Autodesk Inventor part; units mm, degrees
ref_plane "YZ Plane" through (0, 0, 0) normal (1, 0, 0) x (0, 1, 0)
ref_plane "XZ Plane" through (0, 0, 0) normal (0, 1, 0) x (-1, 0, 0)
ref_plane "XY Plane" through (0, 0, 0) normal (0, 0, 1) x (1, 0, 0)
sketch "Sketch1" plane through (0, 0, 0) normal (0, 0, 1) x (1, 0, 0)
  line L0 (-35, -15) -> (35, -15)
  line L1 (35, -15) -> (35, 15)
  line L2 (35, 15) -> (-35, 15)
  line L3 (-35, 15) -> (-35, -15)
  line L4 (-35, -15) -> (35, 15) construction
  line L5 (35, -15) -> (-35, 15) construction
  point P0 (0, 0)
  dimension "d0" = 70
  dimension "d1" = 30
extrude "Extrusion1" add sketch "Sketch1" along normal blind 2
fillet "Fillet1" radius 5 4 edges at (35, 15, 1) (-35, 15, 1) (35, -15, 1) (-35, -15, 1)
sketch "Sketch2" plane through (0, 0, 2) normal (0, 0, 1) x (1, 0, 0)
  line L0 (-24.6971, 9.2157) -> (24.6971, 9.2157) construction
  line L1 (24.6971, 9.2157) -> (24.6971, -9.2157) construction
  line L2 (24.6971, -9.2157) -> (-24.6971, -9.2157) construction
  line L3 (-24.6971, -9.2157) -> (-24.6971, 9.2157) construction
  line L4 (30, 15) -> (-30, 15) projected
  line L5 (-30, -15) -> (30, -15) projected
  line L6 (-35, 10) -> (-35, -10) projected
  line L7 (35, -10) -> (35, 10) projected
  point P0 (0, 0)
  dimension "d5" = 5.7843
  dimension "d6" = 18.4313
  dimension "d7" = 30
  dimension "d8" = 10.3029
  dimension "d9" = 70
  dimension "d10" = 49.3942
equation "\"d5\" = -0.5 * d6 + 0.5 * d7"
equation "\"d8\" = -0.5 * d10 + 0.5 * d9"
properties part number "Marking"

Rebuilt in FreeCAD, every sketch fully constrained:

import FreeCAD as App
import Part
import Sketcher
Q = App.Units.Quantity


def edges_at(feature, points):
    """Names of the edges that pass closest to the given points."""
    edges = feature.Shape.Edges
    near = lambda p: min(range(len(edges)), key=lambda i: edges[i].distToShape(Part.Vertex(*p))[0])
    return sorted({f"Edge{near(p) + 1}" for p in points})

doc = App.newDocument("Part")
params = doc.addObject("Spreadsheet::Sheet", "Params")
for row, (alias, value) in enumerate([
    ("sketch1_width", "70 mm"),
    ("sketch1_height", "30 mm"),
    ("pad1_length", "2 mm"),
    ("fillet_radius", "5 mm"),
], start=1):
    params.set(f"A{row}", alias)
    params.set(f"B{row}", "=" + value)
    params.setAlias(f"B{row}", alias)

body = doc.addObject("PartDesign::Body", "Body")

sketch1 = doc.addObject("Sketcher::SketchObject", "Sketch")
body.addObject(sketch1)
sketch1.AttachmentSupport = (doc.XY_Plane, [""])
sketch1.MapMode = "FlatFace"
sketch1.addGeometry([
    Part.LineSegment(App.Vector(-35, 15, 0), App.Vector(-35, -15, 0)),
    Part.LineSegment(App.Vector(-35, -15, 0), App.Vector(35, -15, 0)),
    Part.LineSegment(App.Vector(35, -15, 0), App.Vector(35, 15, 0)),
    Part.LineSegment(App.Vector(35, 15, 0), App.Vector(-35, 15, 0)),
], False)
sketch1.addConstraint([
    Sketcher.Constraint("Coincident", 0, 2, 1, 1),
    Sketcher.Constraint("Coincident", 1, 2, 2, 1),
    Sketcher.Constraint("Coincident", 2, 2, 3, 1),
    Sketcher.Constraint("Coincident", 3, 2, 0, 1),
    Sketcher.Constraint("Vertical", 0),
    Sketcher.Constraint("Horizontal", 1),
    Sketcher.Constraint("Vertical", 2),
    Sketcher.Constraint("Horizontal", 3),
    Sketcher.Constraint("Symmetric", 0, 2, 2, 2, -1, 1),
    Sketcher.Constraint("DistanceX", 1, 1, 1, 2, Q("70 mm")),
    Sketcher.Constraint("DistanceY", 0, 2, 0, 1, Q("30 mm")),
])
sketch1.setExpression("Constraints[9]", "Params.sketch1_width")
sketch1.setExpression("Constraints[10]", "Params.sketch1_height")
pad1 = doc.addObject("PartDesign::Pad", "Pad")
body.addObject(pad1)
pad1.Profile = sketch1
pad1.setExpression("Length", "Params.pad1_length")
doc.recompute()

fillet = doc.addObject("PartDesign::Fillet", "Fillet")
body.addObject(fillet)
fillet.Base = (pad1, edges_at(pad1, [
    (35, 15, 1),
    (-35, 15, 1),
    (35, -15, 1),
    (-35, -15, 1),
]))
fillet.setExpression("Radius", "Params.fillet_radius")

doc.recompute()
